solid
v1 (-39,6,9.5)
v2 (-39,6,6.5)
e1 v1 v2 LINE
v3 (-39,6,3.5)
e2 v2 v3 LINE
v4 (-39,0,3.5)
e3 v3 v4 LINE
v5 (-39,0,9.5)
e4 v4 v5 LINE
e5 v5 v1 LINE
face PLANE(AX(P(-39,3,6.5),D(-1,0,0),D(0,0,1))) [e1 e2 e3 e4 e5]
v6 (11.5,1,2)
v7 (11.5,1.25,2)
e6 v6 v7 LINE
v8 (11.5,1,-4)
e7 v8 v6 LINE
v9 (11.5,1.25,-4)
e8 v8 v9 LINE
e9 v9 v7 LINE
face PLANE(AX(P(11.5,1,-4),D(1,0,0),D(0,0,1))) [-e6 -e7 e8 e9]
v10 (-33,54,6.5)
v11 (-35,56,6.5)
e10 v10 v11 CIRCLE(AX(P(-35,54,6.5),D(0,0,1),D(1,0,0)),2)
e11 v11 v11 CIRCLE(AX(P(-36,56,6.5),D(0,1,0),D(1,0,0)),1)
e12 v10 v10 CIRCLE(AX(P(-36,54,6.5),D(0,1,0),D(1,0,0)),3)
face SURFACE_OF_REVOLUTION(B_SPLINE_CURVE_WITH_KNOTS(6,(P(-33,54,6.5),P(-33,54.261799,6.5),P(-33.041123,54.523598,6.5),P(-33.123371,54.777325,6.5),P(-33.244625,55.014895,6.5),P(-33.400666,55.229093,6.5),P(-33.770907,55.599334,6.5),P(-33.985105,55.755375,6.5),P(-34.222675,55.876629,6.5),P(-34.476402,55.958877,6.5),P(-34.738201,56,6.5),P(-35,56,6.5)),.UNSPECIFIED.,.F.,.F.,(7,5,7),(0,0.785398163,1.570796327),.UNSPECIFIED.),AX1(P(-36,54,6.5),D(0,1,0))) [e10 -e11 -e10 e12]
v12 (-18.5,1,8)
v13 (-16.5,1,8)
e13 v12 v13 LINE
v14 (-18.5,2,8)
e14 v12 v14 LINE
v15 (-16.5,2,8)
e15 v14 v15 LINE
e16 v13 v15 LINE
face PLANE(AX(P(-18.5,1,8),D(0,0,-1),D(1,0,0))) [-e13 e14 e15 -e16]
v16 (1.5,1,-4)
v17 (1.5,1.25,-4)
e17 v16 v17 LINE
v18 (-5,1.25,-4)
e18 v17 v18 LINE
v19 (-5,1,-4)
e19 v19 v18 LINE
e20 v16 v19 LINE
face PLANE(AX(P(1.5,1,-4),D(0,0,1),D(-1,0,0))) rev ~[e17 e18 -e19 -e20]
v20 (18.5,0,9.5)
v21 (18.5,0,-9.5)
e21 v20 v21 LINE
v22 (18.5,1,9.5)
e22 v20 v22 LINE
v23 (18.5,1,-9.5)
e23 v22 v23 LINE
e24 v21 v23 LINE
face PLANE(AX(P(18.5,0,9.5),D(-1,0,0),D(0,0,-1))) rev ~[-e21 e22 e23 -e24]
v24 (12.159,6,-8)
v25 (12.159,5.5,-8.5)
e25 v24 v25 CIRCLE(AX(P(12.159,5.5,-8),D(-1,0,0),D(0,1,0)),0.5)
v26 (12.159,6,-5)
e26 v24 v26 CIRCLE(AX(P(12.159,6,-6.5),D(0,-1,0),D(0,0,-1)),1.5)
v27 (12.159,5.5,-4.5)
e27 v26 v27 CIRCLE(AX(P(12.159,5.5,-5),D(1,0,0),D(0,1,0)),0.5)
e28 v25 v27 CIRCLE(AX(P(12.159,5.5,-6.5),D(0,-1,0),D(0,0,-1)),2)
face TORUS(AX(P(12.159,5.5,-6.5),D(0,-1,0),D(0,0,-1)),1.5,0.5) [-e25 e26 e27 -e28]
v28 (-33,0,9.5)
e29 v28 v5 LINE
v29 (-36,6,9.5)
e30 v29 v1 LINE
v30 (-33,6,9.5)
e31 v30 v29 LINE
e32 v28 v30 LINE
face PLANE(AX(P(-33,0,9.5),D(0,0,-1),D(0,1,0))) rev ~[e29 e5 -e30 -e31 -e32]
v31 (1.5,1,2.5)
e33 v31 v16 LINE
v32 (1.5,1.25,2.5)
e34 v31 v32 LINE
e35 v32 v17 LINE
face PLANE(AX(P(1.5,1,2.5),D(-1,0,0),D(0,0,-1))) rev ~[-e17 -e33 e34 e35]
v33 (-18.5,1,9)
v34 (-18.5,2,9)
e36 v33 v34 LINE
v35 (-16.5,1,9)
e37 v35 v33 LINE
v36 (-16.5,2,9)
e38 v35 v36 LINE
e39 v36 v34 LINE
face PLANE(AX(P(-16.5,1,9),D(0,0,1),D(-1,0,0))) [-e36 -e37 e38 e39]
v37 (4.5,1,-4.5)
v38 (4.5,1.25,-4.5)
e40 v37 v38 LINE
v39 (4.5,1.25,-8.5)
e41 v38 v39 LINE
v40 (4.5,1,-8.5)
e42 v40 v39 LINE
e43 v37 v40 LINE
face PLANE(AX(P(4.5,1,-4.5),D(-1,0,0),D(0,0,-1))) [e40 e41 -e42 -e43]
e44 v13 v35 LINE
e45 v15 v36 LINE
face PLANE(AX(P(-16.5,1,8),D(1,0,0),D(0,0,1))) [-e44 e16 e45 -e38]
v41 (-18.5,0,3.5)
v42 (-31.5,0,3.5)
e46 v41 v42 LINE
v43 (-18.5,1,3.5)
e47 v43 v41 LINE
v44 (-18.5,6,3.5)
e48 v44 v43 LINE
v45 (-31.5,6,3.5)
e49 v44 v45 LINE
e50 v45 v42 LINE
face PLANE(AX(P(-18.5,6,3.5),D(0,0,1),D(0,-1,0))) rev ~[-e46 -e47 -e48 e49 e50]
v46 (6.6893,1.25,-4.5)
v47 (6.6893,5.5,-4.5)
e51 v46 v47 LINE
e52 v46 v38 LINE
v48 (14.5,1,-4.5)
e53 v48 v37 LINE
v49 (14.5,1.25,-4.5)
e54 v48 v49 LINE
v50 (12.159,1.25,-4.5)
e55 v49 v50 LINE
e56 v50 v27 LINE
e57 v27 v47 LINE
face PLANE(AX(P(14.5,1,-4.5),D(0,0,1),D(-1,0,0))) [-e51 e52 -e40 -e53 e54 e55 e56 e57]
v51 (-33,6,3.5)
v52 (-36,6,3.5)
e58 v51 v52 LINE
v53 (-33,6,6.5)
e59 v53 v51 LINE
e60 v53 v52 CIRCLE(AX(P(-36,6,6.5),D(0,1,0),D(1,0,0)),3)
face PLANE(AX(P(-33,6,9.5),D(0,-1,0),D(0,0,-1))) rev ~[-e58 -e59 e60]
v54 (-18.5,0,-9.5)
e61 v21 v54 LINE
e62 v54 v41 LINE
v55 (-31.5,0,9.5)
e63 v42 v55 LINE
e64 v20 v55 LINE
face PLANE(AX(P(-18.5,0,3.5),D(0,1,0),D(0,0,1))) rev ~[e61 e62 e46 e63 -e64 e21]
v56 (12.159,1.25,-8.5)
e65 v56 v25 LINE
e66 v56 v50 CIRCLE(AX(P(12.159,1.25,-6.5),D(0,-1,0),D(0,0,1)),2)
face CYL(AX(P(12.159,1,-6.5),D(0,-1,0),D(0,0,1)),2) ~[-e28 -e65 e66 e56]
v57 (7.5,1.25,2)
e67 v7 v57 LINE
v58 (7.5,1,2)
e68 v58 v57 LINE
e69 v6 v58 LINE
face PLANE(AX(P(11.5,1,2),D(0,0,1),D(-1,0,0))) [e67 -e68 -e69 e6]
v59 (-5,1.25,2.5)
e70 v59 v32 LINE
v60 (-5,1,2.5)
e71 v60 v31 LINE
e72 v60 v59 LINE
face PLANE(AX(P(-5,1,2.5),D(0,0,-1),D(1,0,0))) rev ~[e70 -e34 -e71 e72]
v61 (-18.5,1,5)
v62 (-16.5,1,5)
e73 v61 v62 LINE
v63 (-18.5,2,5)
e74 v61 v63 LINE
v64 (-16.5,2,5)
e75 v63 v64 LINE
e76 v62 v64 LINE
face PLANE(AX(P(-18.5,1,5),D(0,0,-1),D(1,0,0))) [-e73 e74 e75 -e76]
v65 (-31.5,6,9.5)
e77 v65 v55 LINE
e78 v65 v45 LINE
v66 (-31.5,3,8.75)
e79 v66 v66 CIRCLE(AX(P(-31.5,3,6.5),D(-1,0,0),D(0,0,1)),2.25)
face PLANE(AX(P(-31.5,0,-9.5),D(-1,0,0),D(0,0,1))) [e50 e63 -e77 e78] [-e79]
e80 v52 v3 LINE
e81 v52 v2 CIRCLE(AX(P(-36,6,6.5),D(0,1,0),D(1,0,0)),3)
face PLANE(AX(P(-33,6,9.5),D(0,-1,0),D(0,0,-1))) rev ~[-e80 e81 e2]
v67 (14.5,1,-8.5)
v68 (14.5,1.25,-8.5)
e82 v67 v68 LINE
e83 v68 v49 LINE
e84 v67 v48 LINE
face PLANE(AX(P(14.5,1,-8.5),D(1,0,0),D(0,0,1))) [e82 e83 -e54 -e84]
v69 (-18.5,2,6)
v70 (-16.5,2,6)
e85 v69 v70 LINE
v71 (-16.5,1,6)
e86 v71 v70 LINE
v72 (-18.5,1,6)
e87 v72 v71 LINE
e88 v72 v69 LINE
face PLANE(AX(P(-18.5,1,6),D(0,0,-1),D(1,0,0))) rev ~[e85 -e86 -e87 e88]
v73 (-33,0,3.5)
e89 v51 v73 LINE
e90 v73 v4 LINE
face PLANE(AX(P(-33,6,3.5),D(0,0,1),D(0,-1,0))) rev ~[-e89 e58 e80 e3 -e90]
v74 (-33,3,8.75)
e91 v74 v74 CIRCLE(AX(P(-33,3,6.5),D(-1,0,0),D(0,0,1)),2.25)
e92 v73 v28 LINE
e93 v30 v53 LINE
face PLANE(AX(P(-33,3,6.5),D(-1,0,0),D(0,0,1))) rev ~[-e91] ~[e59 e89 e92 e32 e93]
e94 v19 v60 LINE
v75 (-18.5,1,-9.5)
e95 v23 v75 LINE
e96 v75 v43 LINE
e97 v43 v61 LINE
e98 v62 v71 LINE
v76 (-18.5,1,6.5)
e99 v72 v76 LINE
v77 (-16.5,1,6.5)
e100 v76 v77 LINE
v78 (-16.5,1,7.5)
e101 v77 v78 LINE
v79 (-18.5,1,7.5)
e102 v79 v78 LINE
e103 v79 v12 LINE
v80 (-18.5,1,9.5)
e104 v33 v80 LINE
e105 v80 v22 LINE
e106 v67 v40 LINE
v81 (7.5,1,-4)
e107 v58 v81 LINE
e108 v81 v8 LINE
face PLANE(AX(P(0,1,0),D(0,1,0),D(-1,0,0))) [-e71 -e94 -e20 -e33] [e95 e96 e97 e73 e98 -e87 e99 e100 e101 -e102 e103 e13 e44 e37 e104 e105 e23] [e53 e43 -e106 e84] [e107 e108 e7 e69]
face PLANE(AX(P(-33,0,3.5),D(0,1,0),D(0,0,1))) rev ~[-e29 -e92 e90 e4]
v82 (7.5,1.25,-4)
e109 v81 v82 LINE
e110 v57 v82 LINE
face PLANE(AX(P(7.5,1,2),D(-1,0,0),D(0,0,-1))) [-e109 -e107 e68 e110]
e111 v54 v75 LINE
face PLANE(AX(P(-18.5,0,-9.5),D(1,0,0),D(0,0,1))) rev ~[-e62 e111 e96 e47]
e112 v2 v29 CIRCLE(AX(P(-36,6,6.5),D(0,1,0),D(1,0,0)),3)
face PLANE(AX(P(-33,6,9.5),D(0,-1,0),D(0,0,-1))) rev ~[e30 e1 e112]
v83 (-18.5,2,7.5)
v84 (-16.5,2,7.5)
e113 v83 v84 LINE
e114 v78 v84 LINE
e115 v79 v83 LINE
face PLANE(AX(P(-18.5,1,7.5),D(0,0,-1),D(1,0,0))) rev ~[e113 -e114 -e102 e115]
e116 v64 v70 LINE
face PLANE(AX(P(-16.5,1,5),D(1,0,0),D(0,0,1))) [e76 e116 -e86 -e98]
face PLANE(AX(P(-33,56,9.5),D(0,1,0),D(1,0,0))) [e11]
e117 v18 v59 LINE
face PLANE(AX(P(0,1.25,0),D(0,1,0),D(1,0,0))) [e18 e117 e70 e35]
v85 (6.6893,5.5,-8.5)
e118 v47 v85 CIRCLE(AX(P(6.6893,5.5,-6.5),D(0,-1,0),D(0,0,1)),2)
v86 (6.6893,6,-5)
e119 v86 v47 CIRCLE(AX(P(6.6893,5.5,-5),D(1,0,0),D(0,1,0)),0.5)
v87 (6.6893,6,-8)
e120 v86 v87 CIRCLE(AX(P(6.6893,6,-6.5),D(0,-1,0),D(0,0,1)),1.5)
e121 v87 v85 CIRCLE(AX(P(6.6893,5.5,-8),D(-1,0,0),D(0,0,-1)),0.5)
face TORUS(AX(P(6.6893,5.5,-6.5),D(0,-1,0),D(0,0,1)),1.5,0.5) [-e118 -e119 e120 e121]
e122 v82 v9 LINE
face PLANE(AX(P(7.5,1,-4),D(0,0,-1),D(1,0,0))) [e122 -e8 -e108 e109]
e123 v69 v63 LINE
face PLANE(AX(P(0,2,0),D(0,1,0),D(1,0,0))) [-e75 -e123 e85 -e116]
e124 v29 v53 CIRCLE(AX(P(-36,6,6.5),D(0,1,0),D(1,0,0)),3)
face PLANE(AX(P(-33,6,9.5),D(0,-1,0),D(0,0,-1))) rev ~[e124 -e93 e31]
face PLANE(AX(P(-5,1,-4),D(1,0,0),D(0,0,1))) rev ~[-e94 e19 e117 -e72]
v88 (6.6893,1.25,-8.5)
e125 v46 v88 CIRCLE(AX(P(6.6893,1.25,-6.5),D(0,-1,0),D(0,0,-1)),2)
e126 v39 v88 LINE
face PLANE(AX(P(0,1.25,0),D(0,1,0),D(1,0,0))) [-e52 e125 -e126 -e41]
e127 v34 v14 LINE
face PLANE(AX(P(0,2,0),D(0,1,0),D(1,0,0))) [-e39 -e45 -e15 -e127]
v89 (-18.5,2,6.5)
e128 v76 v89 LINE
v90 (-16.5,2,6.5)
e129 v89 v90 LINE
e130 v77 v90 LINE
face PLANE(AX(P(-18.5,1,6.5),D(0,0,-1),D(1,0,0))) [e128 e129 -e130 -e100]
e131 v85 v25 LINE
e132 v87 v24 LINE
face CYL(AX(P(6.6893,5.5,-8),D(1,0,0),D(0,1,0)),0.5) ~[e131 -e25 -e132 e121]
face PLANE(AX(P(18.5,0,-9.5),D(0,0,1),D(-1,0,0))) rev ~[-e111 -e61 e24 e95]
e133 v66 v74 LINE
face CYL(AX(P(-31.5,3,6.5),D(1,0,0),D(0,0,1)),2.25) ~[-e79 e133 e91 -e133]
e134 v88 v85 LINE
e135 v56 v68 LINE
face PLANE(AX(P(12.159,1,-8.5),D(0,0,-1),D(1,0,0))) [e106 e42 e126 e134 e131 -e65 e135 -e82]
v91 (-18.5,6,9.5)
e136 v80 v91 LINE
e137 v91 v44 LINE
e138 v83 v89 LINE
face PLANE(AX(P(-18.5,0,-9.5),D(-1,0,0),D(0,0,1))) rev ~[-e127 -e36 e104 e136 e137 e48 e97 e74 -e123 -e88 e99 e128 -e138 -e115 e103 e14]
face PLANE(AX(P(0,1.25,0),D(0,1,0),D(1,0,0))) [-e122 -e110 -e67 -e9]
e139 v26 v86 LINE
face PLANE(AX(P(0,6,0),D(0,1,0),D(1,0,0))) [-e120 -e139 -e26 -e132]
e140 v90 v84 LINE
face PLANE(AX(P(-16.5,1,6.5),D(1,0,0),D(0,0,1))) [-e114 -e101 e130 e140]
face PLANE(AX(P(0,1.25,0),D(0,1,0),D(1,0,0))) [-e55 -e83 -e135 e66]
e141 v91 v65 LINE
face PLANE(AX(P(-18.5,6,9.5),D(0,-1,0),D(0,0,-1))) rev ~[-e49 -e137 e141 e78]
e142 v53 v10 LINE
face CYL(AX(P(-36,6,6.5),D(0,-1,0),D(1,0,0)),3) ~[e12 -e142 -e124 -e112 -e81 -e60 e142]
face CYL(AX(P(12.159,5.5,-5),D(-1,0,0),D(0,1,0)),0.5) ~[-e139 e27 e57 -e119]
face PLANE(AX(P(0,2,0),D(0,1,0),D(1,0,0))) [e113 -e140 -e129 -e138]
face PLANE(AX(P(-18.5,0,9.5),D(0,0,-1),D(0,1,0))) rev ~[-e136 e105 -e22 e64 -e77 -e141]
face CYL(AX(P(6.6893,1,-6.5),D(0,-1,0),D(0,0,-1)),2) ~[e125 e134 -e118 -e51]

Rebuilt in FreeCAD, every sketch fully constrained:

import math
import FreeCAD as App
import Part
import Sketcher


def edges_at(feature, points):
    """Names of the edges that pass closest to the given points."""
    edges = feature.Shape.Edges
    near = lambda p: min(range(len(edges)), key=lambda i: edges[i].distToShape(Part.Vertex(*p))[0])
    return sorted({f"Edge{near(p) + 1}" for p in points})


def add_polygon(sketch, points):
    """Adds a closed chain of lines whose ends are joined by coincident constraints."""
    first, n = sketch.GeometryCount, len(points)
    for a, b in zip(points, points[1:] + points[:1]):
        sketch.addGeometry(Part.LineSegment(App.Vector(*a, 0), App.Vector(*b, 0)), False)
    for i in range(n):
        sketch.addConstraint(Sketcher.Constraint("Coincident", first + i, 2, first + (i + 1) % n, 1))

doc = App.newDocument("Part")
body = doc.addObject("PartDesign::Body", "Body")

sketch1 = body.newObject("Sketcher::SketchObject", "Sketch")
sketch1.AttachmentSupport = (doc.getObject("XZ_Plane"), [""])
sketch1.MapMode = "FlatFace"
add_polygon(sketch1, [(-18, 10), (18, 10), (18, -10), (-18, -10)])
sketch1.addConstraint([
    Sketcher.Constraint("Horizontal", 0),
    Sketcher.Constraint("Vertical", 1),
    Sketcher.Constraint("Horizontal", 2),
    Sketcher.Constraint("Vertical", 3),
    Sketcher.Constraint("Symmetric", 0, 2, 2, 2, -1, 1),
    Sketcher.Constraint("DistanceX", 0, 1, 0, 2, 37.0),
    Sketcher.Constraint("DistanceY", 1, 2, 1, 1, 19.0),
])
pad1 = body.newObject("PartDesign::Pad", "Pad")
pad1.Profile = sketch1
pad1.Length = 1
pad1.Reversed = True

sketch2 = body.newObject("Sketcher::SketchObject", "Sketch001")
sketch2.AttachmentSupport = (doc.getObject("XZ_Plane"), [""])
sketch2.MapMode = "FlatFace"
sketch2.AttachmentOffset = App.Placement(App.Vector(0, 0, -1), App.Rotation())
add_polygon(sketch2, [(14.5, -4.5), (14.5, -8.5), (4.5, -8.5), (4.5, -4.5)])
add_polygon(sketch2, [(11.5, 2), (11.5, -4), (7.5, -4), (7.5, 2)])
add_polygon(sketch2, [(1.5, 2.5), (1.5, -4), (-5, -4), (-5, 2.5)])
sketch2.addConstraint([
    Sketcher.Constraint("Vertical", 0),
    Sketcher.Constraint("Horizontal", 1),
    Sketcher.Constraint("Vertical", 2),
    Sketcher.Constraint("Horizontal", 3),
    Sketcher.Constraint("Vertical", 4),
    Sketcher.Constraint("Horizontal", 5),
    Sketcher.Constraint("Vertical", 6),
    Sketcher.Constraint("Horizontal", 7),
    Sketcher.Constraint("Vertical", 8),
    Sketcher.Constraint("Horizontal", 9),
    Sketcher.Constraint("Vertical", 10),
    Sketcher.Constraint("Horizontal", 11),
    Sketcher.Constraint("Horizontal", 5, 2, 8, 2),
    Sketcher.Constraint("Equal", 7, 0),
    Sketcher.Constraint("Equal", 11, 8),
    Sketcher.Constraint("DistanceX", 1, 2, 1, 1, 10.0),
    Sketcher.Constraint("DistanceX", 5, 2, 5, 1, 4.0),
    Sketcher.Constraint("DistanceY", 4, 2, 4, 1, 6.0),
    Sketcher.Constraint("DistanceX", 9, 2, 9, 1, 6.5),
    Sketcher.Constraint("DistanceY", 4, 2, -1, 1, 4.0),
    Sketcher.Constraint("DistanceX", 2, 2, 4, 2, 7.0),
    Sketcher.Constraint("DistanceX", 8, 2, 5, 2, 6.0),
    Sketcher.Constraint("DistanceY", 2, 2, 10, 2, 7.0),
    Sketcher.Constraint("DistanceX", 9, 2, -1, 1, 5.0),
])
pad2 = body.newObject("PartDesign::Pad", "Pad001")
pad2.Profile = sketch2
pad2.Length = 0.25
pad2.Reversed = True

sketch3 = body.newObject("Sketcher::SketchObject", "Sketch002")
sketch3.AttachmentSupport = (doc.getObject("XZ_Plane"), [""])
sketch3.MapMode = "FlatFace"
sketch3.AttachmentOffset = App.Placement(App.Vector(0, 0, -1), App.Rotation())
add_polygon(sketch3, [(-18.5, 8), (-18.5, 9), (-16.5, 9), (-16.5, 8)])
add_polygon(sketch3, [(-18.5, 6.5), (-18.5, 7.5), (-16.5, 7.5), (-16.5, 6.5)])
add_polygon(sketch3, [(-18.5, 5), (-18.5, 6), (-16.5, 6), (-16.5, 5)])
sketch3.addConstraint([
    Sketcher.Constraint("Vertical", 0),
    Sketcher.Constraint("Horizontal", 1),
    Sketcher.Constraint("Vertical", 2),
    Sketcher.Constraint("Horizontal", 3),
    Sketcher.Constraint("Vertical", 4),
    Sketcher.Constraint("Horizontal", 5),
    Sketcher.Constraint("Vertical", 6),
    Sketcher.Constraint("Horizontal", 7),
    Sketcher.Constraint("Vertical", 8),
    Sketcher.Constraint("Horizontal", 9),
    Sketcher.Constraint("Vertical", 10),
    Sketcher.Constraint("Horizontal", 11),
    Sketcher.Constraint("Vertical", 3, 2, 4, 2),
    Sketcher.Constraint("Vertical", 2, 2, 5, 2),
    Sketcher.Constraint("Vertical", 7, 2, 8, 2),
    Sketcher.Constraint("Vertical", 6, 2, 9, 2),
    Sketcher.Constraint("Equal", 2, 4),
    Sketcher.Constraint("Equal", 6, 8),
    Sketcher.Constraint("DistanceX", 1, 1, 1, 2, 2.0),
    Sketcher.Constraint("DistanceY", 0, 1, 0, 2, 1.0),
    Sketcher.Constraint("DistanceY", -1, 1, 8, 2, 6.0),
    Sketcher.Constraint("DistanceY", 8, 2, 3, 2, 2.0),
    Sketcher.Constraint("DistanceY", -1, 1, 6, 2, 6.5),
    Sketcher.Constraint("DistanceX", 0, 2, -1, 1, 18.5),
])
pad3 = body.newObject("PartDesign::Pad", "Pad002")
pad3.Profile = sketch3
pad3.Length = 1
pad3.Reversed = True

sketch4 = body.newObject("Sketcher::SketchObject", "Sketch003")
sketch4.AttachmentSupport = (doc.getObject("YZ_Plane"), [""])
sketch4.MapMode = "FlatFace"
sketch4.AttachmentOffset = App.Placement(App.Vector(0, 0, -18.5), App.Rotation())
add_polygon(sketch4, [(0, 4), (0, 10), (6, 10), (6, 4)])
sketch4.addConstraint([
    Sketcher.Constraint("Vertical", 0),
    Sketcher.Constraint("Horizontal", 1),
    Sketcher.Constraint("Vertical", 2),
    Sketcher.Constraint("Horizontal", 3),
    Sketcher.Constraint("PointOnObject", 0, 2, -2),
    Sketcher.Constraint("Equal", 3, 0),
    Sketcher.Constraint("DistanceX", 1, 1, 1, 2, 6.0),
    Sketcher.Constraint("DistanceY", -1, 1, 0, 2, 9.5),
])
pad4 = body.newObject("PartDesign::Pad", "Pad003")
pad4.Profile = sketch4
pad4.Length = 13
pad4.Reversed = True

sketch5 = body.newObject("Sketcher::SketchObject", "Sketch004")
sketch5.AttachmentSupport = (doc.getObject("YZ_Plane"), [""])
sketch5.MapMode = "FlatFace"
sketch5.AttachmentOffset = App.Placement(App.Vector(0, 0, -31.5), App.Rotation())
sketch5.addGeometry(Part.Circle(App.Vector(3, 6.5, 0), App.Vector(0, 0, 1), 2.2), False)
sketch5.addConstraint([
    Sketcher.Constraint("Diameter", 0, 4.5),
    Sketcher.Constraint("DistanceX", -1, 1, 0, 3, 3.0),
    Sketcher.Constraint("DistanceY", -1, 1, 0, 3, 6.5),
])
pad5 = body.newObject("PartDesign::Pad", "Pad004")
pad5.Profile = sketch5
pad5.Length = 1.5
pad5.Reversed = True

sketch6 = body.newObject("Sketcher::SketchObject", "Sketch005")
sketch6.AttachmentSupport = (doc.getObject("YZ_Plane"), [""])
sketch6.MapMode = "FlatFace"
sketch6.AttachmentOffset = App.Placement(App.Vector(0, 0, -33), App.Rotation())
add_polygon(sketch6, [(0, 4), (0, 10), (6, 10), (6, 4)])
sketch6.addConstraint([
    Sketcher.Constraint("Vertical", 0),
    Sketcher.Constraint("Horizontal", 1),
    Sketcher.Constraint("Vertical", 2),
    Sketcher.Constraint("Horizontal", 3),
    Sketcher.Constraint("PointOnObject", 0, 2, -2),
    Sketcher.Constraint("Equal", 3, 0),
    Sketcher.Constraint("DistanceX", 1, 1, 1, 2, 6.0),
    Sketcher.Constraint("DistanceY", -1, 1, 0, 2, 9.5),
])
pad6 = body.newObject("PartDesign::Pad", "Pad005")
pad6.Profile = sketch6
pad6.Length = 6
pad6.Reversed = True

sketch7 = body.newObject("Sketcher::SketchObject", "Sketch006")
sketch7.AttachmentSupport = (doc.getObject("XZ_Plane"), [""])
sketch7.MapMode = "FlatFace"
sketch7.AttachmentOffset = App.Placement(App.Vector(0, 0, -6), App.Rotation())
sketch7.addGeometry(Part.Circle(App.Vector(-36, 6.5, 0), App.Vector(0, 0, 1), 3), False)
sketch7.addConstraint([
    Sketcher.Constraint("Diameter", 0, 6.0),
    Sketcher.Constraint("DistanceX", 0, 3, -1, 1, 36.0),
    Sketcher.Constraint("DistanceY", -1, 1, 0, 3, 6.5),
])
pad7 = body.newObject("PartDesign::Pad", "Pad006")
pad7.Profile = sketch7
pad7.Length = 50
pad7.Reversed = True
doc.recompute()

fillet = body.newObject("PartDesign::Fillet", "Fillet")
fillet.Base = (pad7, edges_at(pad7, [(-39, 56, 6.5)]))
fillet.Radius = 2

sketch8 = body.newObject("Sketcher::SketchObject", "Sketch007")
sketch8.AttachmentSupport = (doc.getObject("XZ_Plane"), [""])
sketch8.MapMode = "FlatFace"
sketch8.AttachmentOffset = App.Placement(App.Vector(0, 0, -1), App.Rotation())
sketch8.addGeometry([
    Part.ArcOfCircle(Part.Circle(App.Vector(12.2, -6.5, 0), App.Vector(0, 0, 1), 2), math.radians(-90), math.radians(90)),
    Part.LineSegment(App.Vector(12.2, -8.5, 0), App.Vector(6.7, -8.5, 0)),
    Part.ArcOfCircle(Part.Circle(App.Vector(6.7, -6.5, 0), App.Vector(0, 0, 1), 2), math.radians(90), math.radians(270)),
    Part.LineSegment(App.Vector(6.7, -4.5, 0), App.Vector(12.2, -4.5, 0)),
], False)
sketch8.addConstraint([
    Sketcher.Constraint("Tangent", 0, 1, 1, 1),
    Sketcher.Constraint("Tangent", 1, 2, 2, 2),
    Sketcher.Constraint("Tangent", 2, 1, 3, 1),
    Sketcher.Constraint("Tangent", 3, 2, 0, 2),
    Sketcher.Constraint("Horizontal", 1),
    Sketcher.Constraint("Horizontal", 3),
    Sketcher.Constraint("Radius", 0, 2.0),
    Sketcher.Constraint("DistanceY", 0, 3, -1, 1, 6.5),
    Sketcher.Constraint("DistanceX", 1, 2, 1, 1, 5.4697),
    Sketcher.Constraint("DistanceX", -1, 1, 0, 3, 12.159),
])
pad8 = body.newObject("PartDesign::Pad", "Pad007")
pad8.Profile = sketch8
pad8.Length = 5
pad8.Reversed = True
doc.recompute()

fillet2 = body.newObject("PartDesign::Fillet", "Fillet001")
fillet2.Base = (pad8, edges_at(pad8, [
    (9.424, 6, -4.5),
    (14.159, 6, -6.5),
    (9.424, 6, -8.5),
    (4.689, 6, -6.5),
]))
fillet2.Radius = 0.5

doc.recompute()
